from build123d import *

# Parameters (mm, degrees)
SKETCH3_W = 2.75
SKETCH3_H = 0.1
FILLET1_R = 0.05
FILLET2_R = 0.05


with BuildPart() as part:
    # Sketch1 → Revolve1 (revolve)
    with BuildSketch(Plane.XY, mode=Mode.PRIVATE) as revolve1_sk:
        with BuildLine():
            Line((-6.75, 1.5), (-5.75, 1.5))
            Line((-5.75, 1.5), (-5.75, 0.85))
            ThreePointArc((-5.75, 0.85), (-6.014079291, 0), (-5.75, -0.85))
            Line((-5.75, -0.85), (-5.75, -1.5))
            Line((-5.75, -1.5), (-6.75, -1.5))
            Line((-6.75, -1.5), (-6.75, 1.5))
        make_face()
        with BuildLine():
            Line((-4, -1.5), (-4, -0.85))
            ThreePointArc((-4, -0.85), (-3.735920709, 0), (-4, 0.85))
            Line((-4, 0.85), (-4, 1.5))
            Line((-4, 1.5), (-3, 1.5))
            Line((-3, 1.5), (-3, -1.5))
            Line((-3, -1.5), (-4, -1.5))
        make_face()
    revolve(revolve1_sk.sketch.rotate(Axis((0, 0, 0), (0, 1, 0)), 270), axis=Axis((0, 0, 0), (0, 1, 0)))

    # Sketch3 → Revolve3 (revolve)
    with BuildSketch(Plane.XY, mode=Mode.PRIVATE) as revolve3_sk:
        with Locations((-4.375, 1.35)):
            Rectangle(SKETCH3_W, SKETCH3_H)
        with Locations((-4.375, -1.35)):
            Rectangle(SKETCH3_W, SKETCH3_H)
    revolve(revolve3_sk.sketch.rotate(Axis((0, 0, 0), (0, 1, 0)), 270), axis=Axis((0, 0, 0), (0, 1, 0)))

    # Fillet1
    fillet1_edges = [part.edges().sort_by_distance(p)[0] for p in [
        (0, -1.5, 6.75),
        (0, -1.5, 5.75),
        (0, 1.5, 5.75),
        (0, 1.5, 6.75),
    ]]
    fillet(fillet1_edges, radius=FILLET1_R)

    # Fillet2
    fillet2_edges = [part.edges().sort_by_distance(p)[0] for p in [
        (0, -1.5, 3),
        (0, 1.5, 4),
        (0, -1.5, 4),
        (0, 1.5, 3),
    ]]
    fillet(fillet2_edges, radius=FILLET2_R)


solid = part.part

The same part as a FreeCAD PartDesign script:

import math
import FreeCAD as App
import Part
import Sketcher
from FreeCAD import Vector


def edges_at(feature, points):
    """Names of the edges that pass closest to the given points."""
    edges = feature.Shape.Edges
    near = lambda p: min(range(len(edges)), key=lambda i: edges[i].distToShape(Part.Vertex(*p))[0])
    return sorted({f"Edge{near(p) + 1}" for p in points})


def add_polygon(sketch, points):
    """Adds a closed chain of lines whose ends are joined by coincident constraints."""
    first, n = sketch.GeometryCount, len(points)
    for a, b in zip(points, points[1:] + points[:1]):
        sketch.addGeometry(Part.LineSegment(App.Vector(*a, 0), App.Vector(*b, 0)), False)
    for i in range(n):
        sketch.addConstraint(Sketcher.Constraint("Coincident", first + i, 2, first + (i + 1) % n, 1))

doc = App.newDocument("Part")
params = doc.addObject("Spreadsheet::Sheet", "Params")
for row, (alias, value) in enumerate([
    ("sketch1_radius", "1.5 mm"),
    ("sketch1_width", "1 mm"),
    ("sketch1_height", "3 mm"),
    ("sketch1_height2", "0.65 mm"),
    ("revolution_angle", "360 deg"),
    ("sketch2_height", "0.1 mm"),
    ("sketch2_width", "2.75 mm"),
    ("revolution2_angle", "360 deg"),
    ("fillet_radius", "0.05 mm"),
    ("fillet2_radius", "0.05 mm"),
], start=1):
    params.set(f"A{row}", alias)
    params.set(f"B{row}", "=" + value)
    params.setAlias(f"B{row}", alias)

body = doc.addObject("PartDesign::Body", "Body")
body.AllowCompound = True

# Sketch on XY plane
sketch1 = body.newObject("Sketcher::SketchObject", "Sketch")
sketch1.AttachmentSupport = (doc.getObject("XY_Plane"), [""])
sketch1.MapMode = "FlatFace"
sketch1.addGeometry([
    Part.LineSegment(Vector(-5.75, 1.5, 0), Vector(-6.75, 1.5, 0)),  # 0
    Part.LineSegment(Vector(-6.75, 1.5, 0), Vector(-6.75, -1.5, 0)),  # 1
    Part.LineSegment(Vector(-6.75, -1.5, 0), Vector(-5.75, -1.5, 0)),  # 2
    Part.LineSegment(Vector(-5.75, -1.5, 0), Vector(-5.75, -0.85, 0)),  # 3
    Part.ArcOfCircle(Part.Circle(Vector(-4.514079, 0, 0), Vector(0, 0, 1), 1.5), math.radians(145.481892), math.radians(214.518108)),  # 4
    Part.LineSegment(Vector(-5.75, 0.85, 0), Vector(-5.75, 1.5, 0)),  # 5
    Part.LineSegment(Vector(-4, -0.85, 0), Vector(-4, -1.5, 0)),  # 6
    Part.LineSegment(Vector(-4, -1.5, 0), Vector(-3, -1.5, 0)),  # 7
    Part.LineSegment(Vector(-3, -1.5, 0), Vector(-3, 1.5, 0)),  # 8
    Part.LineSegment(Vector(-3, 1.5, 0), Vector(-4, 1.5, 0)),  # 9
    Part.LineSegment(Vector(-4, 1.5, 0), Vector(-4, 0.85, 0)),  # 10
    Part.ArcOfCircle(Part.Circle(Vector(-5.235921, 0, 0), Vector(0, 0, 1), 1.5), math.radians(-34.518108), math.radians(34.518108)),  # 11
], False)
sketch1.addConstraint([
    Sketcher.Constraint("Coincident", 0, 2, 1, 1),
    Sketcher.Constraint("Coincident", 1, 2, 2, 1),
    Sketcher.Constraint("Coincident", 2, 2, 3, 1),
    Sketcher.Constraint("Coincident", 3, 2, 4, 2),
    Sketcher.Constraint("Coincident", 4, 1, 5, 1),
    Sketcher.Constraint("Coincident", 5, 2, 0, 1),
    Sketcher.Constraint("Coincident", 6, 2, 7, 1),
    Sketcher.Constraint("Coincident", 7, 2, 8, 1),
    Sketcher.Constraint("Coincident", 8, 2, 9, 1),
    Sketcher.Constraint("Coincident", 9, 2, 10, 1),
    Sketcher.Constraint("Coincident", 10, 2, 11, 2),
    Sketcher.Constraint("Coincident", 11, 1, 6, 1),
    Sketcher.Constraint("Horizontal", 0),
    Sketcher.Constraint("Vertical", 1),
    Sketcher.Constraint("Horizontal", 2),
    Sketcher.Constraint("Vertical", 3),
    Sketcher.Constraint("Vertical", 5),
    Sketcher.Constraint("Vertical", 6),
    Sketcher.Constraint("Horizontal", 7),
    Sketcher.Constraint("Vertical", 8),
    Sketcher.Constraint("Horizontal", 9),
    Sketcher.Constraint("Vertical", 10),
    Sketcher.Constraint("Equal", 4, 11),
    Sketcher.Constraint("Symmetric", 3, 2, 4, 1, -1),
    Sketcher.Constraint("Symmetric", 6, 2, 9, 2, -1),
    Sketcher.Constraint("PointOnObject", 11, 3, -1),
    Sketcher.Constraint("Horizontal", 2, 2, 6, 2),
    Sketcher.Constraint("Horizontal", 5, 2, 8, 2),
    Sketcher.Constraint("Horizontal", 4, 1, 10, 2),
    Sketcher.Constraint("Equal", 2, 7),
    Sketcher.Constraint("Radius", 4, 1.5),
    Sketcher.Constraint("DistanceX", 0, 2, 0, 1, 1.0),
    Sketcher.Constraint("DistanceY", 1, 2, 1, 1, 3.0),
    Sketcher.Constraint("DistanceX", 6, 2, -1, 1, 4.0),
    Sketcher.Constraint("DistanceY", 3, 1, 3, 2, 0.65),
    Sketcher.Constraint("DistanceX", 0, 2, -1, 1, 6.75),
])
sketch1.setExpression("Constraints[30]", "Params.sketch1_radius")
sketch1.setExpression("Constraints[31]", "Params.sketch1_width")
sketch1.setExpression("Constraints[32]", "Params.sketch1_height")
sketch1.setExpression("Constraints[34]", "Params.sketch1_height2")
revolution = body.newObject("PartDesign::Revolution", "Revolution")
revolution.Profile = sketch1
revolution.ReferenceAxis = (sketch1, ["V_Axis"])
revolution.setExpression("Angle", "Params.revolution_angle")

# Sketch on XY plane
sketch2 = body.newObject("Sketcher::SketchObject", "Sketch001")
sketch2.AttachmentSupport = (doc.getObject("XY_Plane"), [""])
sketch2.MapMode = "FlatFace"
add_polygon(sketch2, [(-5.75, 1.4), (-5.75, 1.3), (-3, 1.3), (-3, 1.4)])  # lines 0-3
add_polygon(sketch2, [(-5.75, -1.3), (-5.75, -1.4), (-3, -1.4), (-3, -1.3)])  # lines 4-7
sketch2.addConstraint([
    Sketcher.Constraint("Vertical", 0),
    Sketcher.Constraint("Horizontal", 1),
    Sketcher.Constraint("Vertical", 2),
    Sketcher.Constraint("Horizontal", 3),
    Sketcher.Constraint("Vertical", 4),
    Sketcher.Constraint("Horizontal", 5),
    Sketcher.Constraint("Vertical", 6),
    Sketcher.Constraint("Horizontal", 7),
    Sketcher.Constraint("Symmetric", 3, 2, 4, 2, -1),
    Sketcher.Constraint("Symmetric", 1, 2, 6, 2, -1),
    Sketcher.Constraint("DistanceY", 0, 2, 0, 1, 0.1),
    Sketcher.Constraint("DistanceX", 1, 2, -1, 1, 3.0),
    Sketcher.Constraint("DistanceX", 1, 1, 1, 2, 2.75),
    Sketcher.Constraint("DistanceY", -1, 1, 0, 2, 1.3),
])
sketch2.setExpression("Constraints[18]", "Params.sketch2_height")
sketch2.setExpression("Constraints[20]", "Params.sketch2_width")
revolution2 = body.newObject("PartDesign::Revolution", "Revolution001")
revolution2.Profile = sketch2
revolution2.ReferenceAxis = (sketch2, ["V_Axis"])
revolution2.setExpression("Angle", "Params.revolution2_angle")
doc.recompute()

fillet = body.newObject("PartDesign::Fillet", "Fillet")
fillet.Base = (revolution2, edges_at(revolution2, [
    (0, -1.5, 6.75),
    (0, -1.5, 5.75),
    (0, 1.5, 5.75),
    (0, 1.5, 6.75),
]))
fillet.setExpression("Radius", "Params.fillet_radius")
doc.recompute()

fillet2 = body.newObject("PartDesign::Fillet", "Fillet001")
fillet2.Base = (fillet, edges_at(fillet, [
    (0, -1.5, 3),
    (0, 1.5, 4),
    (0, -1.5, 4),
    (0, 1.5, 3),
]))
fillet2.setExpression("Radius", "Params.fillet2_radius")

doc.recompute()
